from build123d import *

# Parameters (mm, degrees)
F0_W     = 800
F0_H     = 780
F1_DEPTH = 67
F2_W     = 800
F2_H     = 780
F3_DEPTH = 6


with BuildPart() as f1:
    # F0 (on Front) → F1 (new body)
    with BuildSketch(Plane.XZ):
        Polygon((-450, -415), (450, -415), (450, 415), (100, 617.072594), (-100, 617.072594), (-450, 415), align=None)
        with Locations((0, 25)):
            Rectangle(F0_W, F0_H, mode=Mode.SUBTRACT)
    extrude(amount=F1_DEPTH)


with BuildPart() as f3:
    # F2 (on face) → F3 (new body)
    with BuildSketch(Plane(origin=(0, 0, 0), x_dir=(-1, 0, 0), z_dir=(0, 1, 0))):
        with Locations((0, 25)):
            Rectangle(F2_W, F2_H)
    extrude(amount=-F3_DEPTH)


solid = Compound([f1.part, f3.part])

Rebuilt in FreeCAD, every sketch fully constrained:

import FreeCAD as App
import Part
import Sketcher

V = App.Vector
Q = App.Units.Quantity


def add_polygon(sketch, points):
    """Adds a closed chain of lines whose ends are joined by coincident constraints."""
    first, n = sketch.GeometryCount, len(points)
    for a, b in zip(points, points[1:] + points[:1]):
        sketch.addGeometry(Part.LineSegment(App.Vector(*a, 0), App.Vector(*b, 0)), False)
    for i in range(n):
        sketch.addConstraint(Sketcher.Constraint("Coincident", first + i, 2, first + (i + 1) % n, 1))

doc = App.newDocument("Part")
body = doc.addObject("PartDesign::Body", "Body")

sketch1 = body.newObject("Sketcher::SketchObject", "Sketch")
sketch1.AttachmentSupport = (doc.getObject("XZ_Plane"), [""])
sketch1.MapMode = "FlatFace"
add_polygon(sketch1, [(-450, -415), (450, -415), (450, 415), (100, 617), (-100, 617), (-450, 415)])
add_polygon(sketch1, [(400, -365), (-400, -365), (-400, 415), (400, 415)])
sketch1.addConstraint([
    Sketcher.Constraint("Horizontal", 0),
    Sketcher.Constraint("Vertical", 1),
    Sketcher.Constraint("Horizontal", 3),
    Sketcher.Constraint("Vertical", 5),
    Sketcher.Constraint("Horizontal", 6),
    Sketcher.Constraint("Vertical", 7),
    Sketcher.Constraint("Horizontal", 8),
    Sketcher.Constraint("Vertical", 9),
    Sketcher.Constraint("Symmetric", 0, 2, 4, 2, -1, 1),
    Sketcher.Constraint("Horizontal", 1, 2, 4, 2),
    Sketcher.Constraint("Horizontal", 4, 2, 7, 2),
    Sketcher.Constraint("Equal", 2, 4),
    Sketcher.Constraint("DistanceX", 0, 1, 0, 2, Q("900 mm")),
    Sketcher.Constraint("DistanceX", 3, 2, 3, 1, Q("200 mm")),
    Sketcher.Constraint("DistanceX", 6, 2, 6, 1, Q("800 mm")),
    Sketcher.Constraint("DistanceY", 1, 1, 1, 2, Q("830 mm")),
    Sketcher.Constraint("DistanceY", 7, 1, 7, 2, Q("780 mm")),
    Sketcher.Constraint("Angle", 2, Q("150 deg")),
    Sketcher.Constraint("DistanceX", 6, 2, -1, 1, Q("400 mm")),
])
pad1 = body.newObject("PartDesign::Pad", "Pad")
pad1.Profile = sketch1
pad1.Length = 67
body2 = doc.addObject("PartDesign::Body", "Body001")

sketch2 = body2.newObject("Sketcher::SketchObject", "Sketch001")
sketch2.AttachmentSupport = (doc.getObject("XZ_Plane001"), [""])
sketch2.MapMode = "FlatFace"
add_polygon(sketch2, [(400, 415), (400, -365), (-400, -365), (-400, 415)])
sketch2.addConstraint([
    Sketcher.Constraint("Vertical", 0),
    Sketcher.Constraint("Horizontal", 1),
    Sketcher.Constraint("Vertical", 2),
    Sketcher.Constraint("Horizontal", 3),
    Sketcher.Constraint("DistanceX", 1, 2, 1, 1, Q("800 mm")),
    Sketcher.Constraint("DistanceY", 0, 2, 0, 1, Q("780 mm")),
    Sketcher.Constraint("DistanceX", -1, 1, 0, 2, Q("400 mm")),
    Sketcher.Constraint("DistanceY", 0, 2, -1, 1, Q("365 mm")),
])
pad2 = body2.newObject("PartDesign::Pad", "Pad001")
pad2.Profile = sketch2
pad2.Length = 6

doc.recompute()
